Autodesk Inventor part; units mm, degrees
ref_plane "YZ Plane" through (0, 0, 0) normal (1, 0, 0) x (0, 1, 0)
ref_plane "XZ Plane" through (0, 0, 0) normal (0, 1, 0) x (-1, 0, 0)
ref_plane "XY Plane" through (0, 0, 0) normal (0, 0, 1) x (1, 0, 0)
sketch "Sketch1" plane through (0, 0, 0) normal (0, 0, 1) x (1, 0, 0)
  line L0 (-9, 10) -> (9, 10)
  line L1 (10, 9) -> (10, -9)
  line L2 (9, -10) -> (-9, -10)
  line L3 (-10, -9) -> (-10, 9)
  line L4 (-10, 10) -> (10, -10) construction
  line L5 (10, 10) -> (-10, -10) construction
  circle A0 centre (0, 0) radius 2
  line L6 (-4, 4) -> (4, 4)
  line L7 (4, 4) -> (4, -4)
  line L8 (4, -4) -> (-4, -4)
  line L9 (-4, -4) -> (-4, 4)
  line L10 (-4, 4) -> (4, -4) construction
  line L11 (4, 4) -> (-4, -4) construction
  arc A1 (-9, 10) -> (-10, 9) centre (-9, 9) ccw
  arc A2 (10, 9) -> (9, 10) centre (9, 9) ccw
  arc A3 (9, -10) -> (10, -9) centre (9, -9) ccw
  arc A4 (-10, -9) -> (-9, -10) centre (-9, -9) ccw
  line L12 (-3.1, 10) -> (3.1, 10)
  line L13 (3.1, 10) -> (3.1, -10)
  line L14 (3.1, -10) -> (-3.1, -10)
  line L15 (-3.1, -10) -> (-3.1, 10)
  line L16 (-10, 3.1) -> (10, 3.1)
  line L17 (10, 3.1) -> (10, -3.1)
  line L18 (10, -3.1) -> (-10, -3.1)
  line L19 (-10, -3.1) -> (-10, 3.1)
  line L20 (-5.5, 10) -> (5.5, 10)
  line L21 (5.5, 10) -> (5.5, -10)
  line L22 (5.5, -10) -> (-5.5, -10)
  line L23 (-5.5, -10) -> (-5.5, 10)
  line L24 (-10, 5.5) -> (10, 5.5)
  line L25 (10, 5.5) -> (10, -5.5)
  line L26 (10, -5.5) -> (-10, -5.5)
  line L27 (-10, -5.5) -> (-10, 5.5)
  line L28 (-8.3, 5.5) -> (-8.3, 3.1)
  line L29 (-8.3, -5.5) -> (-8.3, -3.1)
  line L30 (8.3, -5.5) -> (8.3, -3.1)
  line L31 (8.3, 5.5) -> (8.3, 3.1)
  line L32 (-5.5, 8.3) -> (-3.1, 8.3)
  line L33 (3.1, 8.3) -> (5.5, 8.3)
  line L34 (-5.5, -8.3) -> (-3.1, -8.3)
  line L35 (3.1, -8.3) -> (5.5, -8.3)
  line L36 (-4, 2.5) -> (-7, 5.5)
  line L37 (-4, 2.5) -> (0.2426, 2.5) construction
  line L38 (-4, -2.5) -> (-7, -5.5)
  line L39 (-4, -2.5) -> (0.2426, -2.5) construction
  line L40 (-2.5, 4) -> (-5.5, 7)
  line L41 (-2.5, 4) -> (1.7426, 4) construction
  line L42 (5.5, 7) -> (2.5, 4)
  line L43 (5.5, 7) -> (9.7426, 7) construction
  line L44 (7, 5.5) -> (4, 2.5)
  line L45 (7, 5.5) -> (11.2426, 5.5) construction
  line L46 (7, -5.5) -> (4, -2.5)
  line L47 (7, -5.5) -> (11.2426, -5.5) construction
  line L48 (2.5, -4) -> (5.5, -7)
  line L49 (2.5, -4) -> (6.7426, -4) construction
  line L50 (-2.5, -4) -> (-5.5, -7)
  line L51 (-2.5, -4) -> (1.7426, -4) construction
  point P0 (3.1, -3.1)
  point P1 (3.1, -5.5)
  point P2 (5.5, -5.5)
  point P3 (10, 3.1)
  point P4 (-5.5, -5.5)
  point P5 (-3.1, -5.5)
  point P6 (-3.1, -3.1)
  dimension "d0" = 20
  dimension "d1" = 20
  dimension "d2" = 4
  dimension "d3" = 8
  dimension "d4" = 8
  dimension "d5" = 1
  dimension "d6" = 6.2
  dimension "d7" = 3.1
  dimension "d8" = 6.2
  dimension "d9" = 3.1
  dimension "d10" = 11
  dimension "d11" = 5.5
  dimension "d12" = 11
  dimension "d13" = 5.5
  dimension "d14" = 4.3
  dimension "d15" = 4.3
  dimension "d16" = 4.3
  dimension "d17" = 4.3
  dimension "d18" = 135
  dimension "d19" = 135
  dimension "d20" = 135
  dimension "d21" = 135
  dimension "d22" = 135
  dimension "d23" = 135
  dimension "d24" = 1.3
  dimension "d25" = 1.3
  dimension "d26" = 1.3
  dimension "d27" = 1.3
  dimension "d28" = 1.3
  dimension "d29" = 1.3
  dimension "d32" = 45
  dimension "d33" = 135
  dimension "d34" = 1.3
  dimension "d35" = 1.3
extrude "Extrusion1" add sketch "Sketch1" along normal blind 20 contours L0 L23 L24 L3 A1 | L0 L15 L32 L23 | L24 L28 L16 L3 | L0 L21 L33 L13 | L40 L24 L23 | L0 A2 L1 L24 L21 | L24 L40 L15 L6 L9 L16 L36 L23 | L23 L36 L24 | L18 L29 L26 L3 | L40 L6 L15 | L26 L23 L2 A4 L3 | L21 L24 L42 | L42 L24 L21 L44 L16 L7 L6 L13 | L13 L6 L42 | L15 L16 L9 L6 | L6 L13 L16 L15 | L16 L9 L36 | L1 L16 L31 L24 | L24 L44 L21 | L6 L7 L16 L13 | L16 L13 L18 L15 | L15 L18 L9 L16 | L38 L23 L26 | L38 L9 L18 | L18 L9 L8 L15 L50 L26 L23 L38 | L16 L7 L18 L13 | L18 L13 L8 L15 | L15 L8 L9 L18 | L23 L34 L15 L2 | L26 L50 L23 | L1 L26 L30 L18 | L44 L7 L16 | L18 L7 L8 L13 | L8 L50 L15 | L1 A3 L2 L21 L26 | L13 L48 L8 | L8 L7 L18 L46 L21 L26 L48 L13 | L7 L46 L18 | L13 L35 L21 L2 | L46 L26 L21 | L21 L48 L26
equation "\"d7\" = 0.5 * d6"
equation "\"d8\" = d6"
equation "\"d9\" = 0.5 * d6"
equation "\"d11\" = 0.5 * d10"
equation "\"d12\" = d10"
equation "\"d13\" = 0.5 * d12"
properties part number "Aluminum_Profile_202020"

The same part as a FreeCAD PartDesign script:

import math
import FreeCAD as App
import Part
import Sketcher

V = App.Vector
Q = App.Units.Quantity

doc = App.newDocument("Part")
body = doc.addObject("PartDesign::Body", "Body")

# Sketch on XY plane
sketch1 = body.newObject("Sketcher::SketchObject", "Sketch")
sketch1.AttachmentSupport = (doc.getObject("XY_Plane"), [""])
sketch1.MapMode = "FlatFace"
sketch1.addGeometry([
    Part.ArcOfCircle(Part.Circle(V(-9, 9, 0), V(0, 0, 1), 1), math.radians(90), math.radians(180)),  # 0
    Part.LineSegment(V(-10, 9, 0), V(-10, 3.1, 0)),  # 1
    Part.LineSegment(V(-10, 3.1, 0), V(-8.3, 3.1, 0)),  # 2
    Part.LineSegment(V(-8.3, 3.1, 0), V(-8.3, 5.5, 0)),  # 3
    Part.LineSegment(V(-8.3, 5.5, 0), V(-7, 5.5, 0)),  # 4
    Part.LineSegment(V(-7, 5.5, 0), V(-4, 2.5, 0)),  # 5
    Part.LineSegment(V(-4, 2.5, 0), V(-4, -2.5, 0)),  # 6
    Part.LineSegment(V(-4, -2.5, 0), V(-7, -5.5, 0)),  # 7
    Part.LineSegment(V(-7, -5.5, 0), V(-8.3, -5.5, 0)),  # 8
    Part.LineSegment(V(-8.3, -5.5, 0), V(-8.3, -3.1, 0)),  # 9
    Part.LineSegment(V(-8.3, -3.1, 0), V(-10, -3.1, 0)),  # 10
    Part.LineSegment(V(-10, -3.1, 0), V(-10, -9, 0)),  # 11
    Part.ArcOfCircle(Part.Circle(V(-9, -9, 0), V(0, 0, 1), 1), math.radians(180), math.radians(270)),  # 12
    Part.LineSegment(V(-9, -10, 0), V(-3.1, -10, 0)),  # 13
    Part.LineSegment(V(-3.1, -10, 0), V(-3.1, -8.3, 0)),  # 14
    Part.LineSegment(V(-3.1, -8.3, 0), V(-5.5, -8.3, 0)),  # 15
    Part.LineSegment(V(-5.5, -8.3, 0), V(-5.5, -7, 0)),  # 16
    Part.LineSegment(V(-5.5, -7, 0), V(-2.5, -4, 0)),  # 17
    Part.LineSegment(V(-2.5, -4, 0), V(2.5, -4, 0)),  # 18
    Part.LineSegment(V(2.5, -4, 0), V(5.5, -7, 0)),  # 19
    Part.LineSegment(V(5.5, -7, 0), V(5.5, -8.3, 0)),  # 20
    Part.LineSegment(V(5.5, -8.3, 0), V(3.1, -8.3, 0)),  # 21
    Part.LineSegment(V(3.1, -8.3, 0), V(3.1, -10, 0)),  # 22
    Part.LineSegment(V(3.1, -10, 0), V(9, -10, 0)),  # 23
    Part.ArcOfCircle(Part.Circle(V(9, -9, 0), V(0, 0, 1), 1), math.radians(-90), math.radians(0)),  # 24
    Part.LineSegment(V(10, -9, 0), V(10, -3.1, 0)),  # 25
    Part.LineSegment(V(10, -3.1, 0), V(8.3, -3.1, 0)),  # 26
    Part.LineSegment(V(8.3, -3.1, 0), V(8.3, -5.5, 0)),  # 27
    Part.LineSegment(V(8.3, -5.5, 0), V(7, -5.5, 0)),  # 28
    Part.LineSegment(V(7, -5.5, 0), V(4, -2.5, 0)),  # 29
    Part.LineSegment(V(4, -2.5, 0), V(4, 2.5, 0)),  # 30
    Part.LineSegment(V(4, 2.5, 0), V(7, 5.5, 0)),  # 31
    Part.LineSegment(V(7, 5.5, 0), V(8.3, 5.5, 0)),  # 32
    Part.LineSegment(V(8.3, 5.5, 0), V(8.3, 3.1, 0)),  # 33
    Part.LineSegment(V(8.3, 3.1, 0), V(10, 3.1, 0)),  # 34
    Part.LineSegment(V(10, 3.1, 0), V(10, 9, 0)),  # 35
    Part.ArcOfCircle(Part.Circle(V(9, 9, 0), V(0, 0, 1), 1), math.radians(0), math.radians(90)),  # 36
    Part.LineSegment(V(9, 10, 0), V(3.1, 10, 0)),  # 37
    Part.LineSegment(V(3.1, 10, 0), V(3.1, 8.3, 0)),  # 38
    Part.LineSegment(V(3.1, 8.3, 0), V(5.5, 8.3, 0)),  # 39
    Part.LineSegment(V(5.5, 8.3, 0), V(5.5, 7, 0)),  # 40
    Part.LineSegment(V(5.5, 7, 0), V(2.5, 4, 0)),  # 41
    Part.LineSegment(V(2.5, 4, 0), V(-2.5, 4, 0)),  # 42
    Part.LineSegment(V(-2.5, 4, 0), V(-5.5, 7, 0)),  # 43
    Part.LineSegment(V(-5.5, 7, 0), V(-5.5, 8.3, 0)),  # 44
    Part.LineSegment(V(-5.5, 8.3, 0), V(-3.1, 8.3, 0)),  # 45
    Part.LineSegment(V(-3.1, 8.3, 0), V(-3.1, 10, 0)),  # 46
    Part.LineSegment(V(-3.1, 10, 0), V(-9, 10, 0)),  # 47
    Part.Circle(V(0, 0, 0), V(0, 0, 1), 2),  # 48
], False)
sketch1.addConstraint([
    Sketcher.Constraint("Tangent", 0, 2, 1, 1),
    Sketcher.Constraint("Coincident", 1, 2, 2, 1),
    Sketcher.Constraint("Coincident", 2, 2, 3, 1),
    Sketcher.Constraint("Coincident", 3, 2, 4, 1),
    Sketcher.Constraint("Coincident", 4, 2, 5, 1),
    Sketcher.Constraint("Coincident", 5, 2, 6, 1),
    Sketcher.Constraint("Coincident", 6, 2, 7, 1),
    Sketcher.Constraint("Coincident", 7, 2, 8, 1),
    Sketcher.Constraint("Coincident", 8, 2, 9, 1),
    Sketcher.Constraint("Coincident", 9, 2, 10, 1),
    Sketcher.Constraint("Coincident", 10, 2, 11, 1),
    Sketcher.Constraint("Tangent", 11, 2, 12, 1),
    Sketcher.Constraint("Tangent", 12, 2, 13, 1),
    Sketcher.Constraint("Coincident", 13, 2, 14, 1),
    Sketcher.Constraint("Coincident", 14, 2, 15, 1),
    Sketcher.Constraint("Coincident", 15, 2, 16, 1),
    Sketcher.Constraint("Coincident", 16, 2, 17, 1),
    Sketcher.Constraint("Coincident", 17, 2, 18, 1),
    Sketcher.Constraint("Coincident", 18, 2, 19, 1),
    Sketcher.Constraint("Coincident", 19, 2, 20, 1),
    Sketcher.Constraint("Coincident", 20, 2, 21, 1),
    Sketcher.Constraint("Coincident", 21, 2, 22, 1),
    Sketcher.Constraint("Coincident", 22, 2, 23, 1),
    Sketcher.Constraint("Tangent", 23, 2, 24, 1),
    Sketcher.Constraint("Tangent", 24, 2, 25, 1),
    Sketcher.Constraint("Coincident", 25, 2, 26, 1),
    Sketcher.Constraint("Coincident", 26, 2, 27, 1),
    Sketcher.Constraint("Coincident", 27, 2, 28, 1),
    Sketcher.Constraint("Coincident", 28, 2, 29, 1),
    Sketcher.Constraint("Coincident", 29, 2, 30, 1),
    Sketcher.Constraint("Coincident", 30, 2, 31, 1),
    Sketcher.Constraint("Coincident", 31, 2, 32, 1),
    Sketcher.Constraint("Coincident", 32, 2, 33, 1),
    Sketcher.Constraint("Coincident", 33, 2, 34, 1),
    Sketcher.Constraint("Coincident", 34, 2, 35, 1),
    Sketcher.Constraint("Tangent", 35, 2, 36, 1),
    Sketcher.Constraint("Tangent", 36, 2, 37, 1),
    Sketcher.Constraint("Coincident", 37, 2, 38, 1),
    Sketcher.Constraint("Coincident", 38, 2, 39, 1),
    Sketcher.Constraint("Coincident", 39, 2, 40, 1),
    Sketcher.Constraint("Coincident", 40, 2, 41, 1),
    Sketcher.Constraint("Coincident", 41, 2, 42, 1),
    Sketcher.Constraint("Coincident", 42, 2, 43, 1),
    Sketcher.Constraint("Coincident", 43, 2, 44, 1),
    Sketcher.Constraint("Coincident", 44, 2, 45, 1),
    Sketcher.Constraint("Coincident", 45, 2, 46, 1),
    Sketcher.Constraint("Coincident", 46, 2, 47, 1),
    Sketcher.Constraint("Tangent", 47, 2, 0, 1),
    Sketcher.Constraint("Vertical", 1),
    Sketcher.Constraint("Horizontal", 2),
    Sketcher.Constraint("Vertical", 3),
    Sketcher.Constraint("Horizontal", 4),
    Sketcher.Constraint("Vertical", 6),
    Sketcher.Constraint("Horizontal", 8),
    Sketcher.Constraint("Vertical", 9),
    Sketcher.Constraint("Horizontal", 10),
    Sketcher.Constraint("Vertical", 11),
    Sketcher.Constraint("Horizontal", 13),
    Sketcher.Constraint("Vertical", 14),
    Sketcher.Constraint("Horizontal", 15),
    Sketcher.Constraint("Vertical", 16),
    Sketcher.Constraint("Horizontal", 18),
    Sketcher.Constraint("Vertical", 20),
    Sketcher.Constraint("Horizontal", 21),
    Sketcher.Constraint("Vertical", 22),
    Sketcher.Constraint("Horizontal", 23),
    Sketcher.Constraint("Vertical", 25),
    Sketcher.Constraint("Horizontal", 26),
    Sketcher.Constraint("Vertical", 27),
    Sketcher.Constraint("Horizontal", 28),
    Sketcher.Constraint("Vertical", 30),
    Sketcher.Constraint("Horizontal", 32),
    Sketcher.Constraint("Vertical", 33),
    Sketcher.Constraint("Horizontal", 34),
    Sketcher.Constraint("Vertical", 35),
    Sketcher.Constraint("Horizontal", 37),
    Sketcher.Constraint("Vertical", 38),
    Sketcher.Constraint("Horizontal", 39),
    Sketcher.Constraint("Vertical", 40),
    Sketcher.Constraint("Horizontal", 42),
    Sketcher.Constraint("Vertical", 44),
    Sketcher.Constraint("Horizontal", 45),
    Sketcher.Constraint("Vertical", 46),
    Sketcher.Constraint("Horizontal", 47),
    Sketcher.Constraint("Coincident", 48, 3, -1, 1),
    Sketcher.Constraint("Equal", 0, 12),
    Sketcher.Constraint("Equal", 12, 24),
    Sketcher.Constraint("Equal", 24, 36),
    Sketcher.Constraint("Symmetric", 0, 3, 24, 3, -1, 1),
    Sketcher.Constraint("Symmetric", 12, 3, 36, 3, -1, 1),
    Sketcher.Constraint("Symmetric", 2, 2, 26, 2, -1, 1),
    Sketcher.Constraint("Symmetric", 4, 2, 28, 2, -1, 1),
    Sketcher.Constraint("Symmetric", 5, 2, 29, 2, -1, 1),
    Sketcher.Constraint("Symmetric", 7, 2, 31, 2, -1, 1),
    Sketcher.Constraint("Symmetric", 9, 2, 33, 2, -1, 1),
    Sketcher.Constraint("Symmetric", 14, 2, 38, 2, -1, 1),
    Sketcher.Constraint("Symmetric", 16, 2, 40, 2, -1, 1),
    Sketcher.Constraint("Symmetric", 17, 2, 41, 2, -1, 1),
    Sketcher.Constraint("Symmetric", 19, 2, 43, 2, -1, 1),
    Sketcher.Constraint("Symmetric", 21, 2, 45, 2, -1, 1),
    Sketcher.Constraint("Symmetric", 12, 3, 24, 3, -2),
    Sketcher.Constraint("Symmetric", 16, 2, 19, 2, -2),
    Sketcher.Constraint("Symmetric", 14, 2, 21, 2, -2),
    Sketcher.Constraint("Symmetric", 9, 2, 26, 2, -2),
    Sketcher.Constraint("Symmetric", 7, 2, 28, 2, -2),
    Sketcher.Constraint("Perpendicular", 5, 7),
    Sketcher.Constraint("Parallel", 7, 17),
    Sketcher.Constraint("Perpendicular", 17, 19),
    Sketcher.Constraint("Perpendicular", 29, 31),
    Sketcher.Constraint("Perpendicular", 41, 43),
    Sketcher.Constraint("Horizontal", 6, 2, 29, 2),
    Sketcher.Constraint("Equal", 47, 1),
    Sketcher.Constraint("Equal", 45, 3),
    Sketcher.Constraint("Equal", 42, 6),
    Sketcher.Constraint("Equal", 34, 14),
    Sketcher.Constraint("Equal", 32, 16),
    Sketcher.Constraint("Equal", 7, 17),
    Sketcher.Constraint("Diameter", 48, Q("4 mm")),
    Sketcher.Constraint("Radius", 0, Q("1 mm")),
    Sketcher.Constraint("DistanceX", 4, 1, 4, 2, Q("1.3 mm")),
    Sketcher.Constraint("DistanceX", 5, 2, -1, 1, Q("4 mm")),
    Sketcher.Constraint("DistanceY", 7, 2, 5, 2, Q("8 mm")),
    Sketcher.Constraint("DistanceY", -1, 1, 1, 2, Q("3.1 mm")),
    Sketcher.Constraint("DistanceY", -1, 1, 3, 2, Q("5.5 mm")),
    Sketcher.Constraint("DistanceX", 2, 1, 2, 2, Q("1.7 mm")),
])
pad1 = body.newObject("PartDesign::Pad", "Pad")
pad1.Profile = sketch1
pad1.Length = 20

doc.recompute()
